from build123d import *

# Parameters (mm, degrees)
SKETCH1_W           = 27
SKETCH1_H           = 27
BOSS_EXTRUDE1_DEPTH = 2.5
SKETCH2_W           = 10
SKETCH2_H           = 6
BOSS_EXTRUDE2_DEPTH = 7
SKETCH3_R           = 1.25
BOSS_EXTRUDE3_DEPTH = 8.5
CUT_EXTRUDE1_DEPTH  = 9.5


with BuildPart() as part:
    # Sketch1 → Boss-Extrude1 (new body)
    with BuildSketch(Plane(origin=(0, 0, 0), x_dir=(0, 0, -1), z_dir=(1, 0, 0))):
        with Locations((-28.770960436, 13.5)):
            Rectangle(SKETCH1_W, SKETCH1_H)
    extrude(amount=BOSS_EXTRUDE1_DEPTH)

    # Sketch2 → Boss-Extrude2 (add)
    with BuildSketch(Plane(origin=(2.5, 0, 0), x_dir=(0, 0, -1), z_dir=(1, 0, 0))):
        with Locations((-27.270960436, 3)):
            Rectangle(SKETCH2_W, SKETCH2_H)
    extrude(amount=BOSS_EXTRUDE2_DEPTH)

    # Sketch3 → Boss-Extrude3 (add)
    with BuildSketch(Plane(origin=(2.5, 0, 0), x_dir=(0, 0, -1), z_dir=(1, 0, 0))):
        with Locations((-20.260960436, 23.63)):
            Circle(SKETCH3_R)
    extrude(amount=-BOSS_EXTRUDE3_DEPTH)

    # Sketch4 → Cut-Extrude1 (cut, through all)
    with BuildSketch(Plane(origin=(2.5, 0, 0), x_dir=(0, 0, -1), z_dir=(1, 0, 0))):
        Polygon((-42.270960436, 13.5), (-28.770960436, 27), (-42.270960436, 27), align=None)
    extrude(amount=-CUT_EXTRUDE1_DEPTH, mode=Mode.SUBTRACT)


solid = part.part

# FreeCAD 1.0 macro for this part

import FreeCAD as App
import Part
import Sketcher
from FreeCAD import Vector


def add_polygon(sketch, points):
    """Adds a closed chain of lines whose ends are joined by coincident constraints."""
    first, n = sketch.GeometryCount, len(points)
    for a, b in zip(points, points[1:] + points[:1]):
        sketch.addGeometry(Part.LineSegment(App.Vector(*a, 0), App.Vector(*b, 0)), False)
    for i in range(n):
        sketch.addConstraint(Sketcher.Constraint("Coincident", first + i, 2, first + (i + 1) % n, 1))

doc = App.newDocument("Part")
body = doc.addObject("PartDesign::Body", "Body")

# Sketch on YZ plane
sketch1 = body.newObject("Sketcher::SketchObject", "Sketch")
sketch1.AttachmentSupport = (doc.getObject("YZ_Plane"), [""])
sketch1.MapMode = "FlatFace"
add_polygon(sketch1, [(27, 42), (0, 42), (0, 15), (27, 15)])  # lines 0-3
sketch1.addConstraint(Sketcher.Constraint("Horizontal", 0))
sketch1.addConstraint(Sketcher.Constraint("Vertical", 1))
sketch1.addConstraint(Sketcher.Constraint("Horizontal", 2))
sketch1.addConstraint(Sketcher.Constraint("Vertical", 3))
sketch1.addConstraint(Sketcher.Constraint("PointOnObject", 0, 2, -2))
sketch1.addConstraint(Sketcher.Constraint("Equal", 2, 1))
sketch1.addConstraint(Sketcher.Constraint("DistanceX", 0, 2, 0, 1, 27.0))
sketch1.addConstraint(Sketcher.Constraint("DistanceY", -1, 1, 0, 2, 42.27096))
pad1 = body.newObject("PartDesign::Pad", "Pad")
pad1.Profile = sketch1
pad1.Length = 2.5

# Sketch on YZ plane
sketch2 = body.newObject("Sketcher::SketchObject", "Sketch001")
sketch2.AttachmentSupport = (doc.getObject("YZ_Plane"), [""])
sketch2.MapMode = "FlatFace"
sketch2.AttachmentOffset = App.Placement(Vector(0, 0, 2.5), App.Rotation())
add_polygon(sketch2, [(6, 32), (0, 32), (0, 22), (6, 22)])  # lines 0-3
sketch2.addConstraint(Sketcher.Constraint("Horizontal", 0))
sketch2.addConstraint(Sketcher.Constraint("Vertical", 1))
sketch2.addConstraint(Sketcher.Constraint("Horizontal", 2))
sketch2.addConstraint(Sketcher.Constraint("Vertical", 3))
sketch2.addConstraint(Sketcher.Constraint("PointOnObject", 0, 2, -2))
sketch2.addConstraint(Sketcher.Constraint("DistanceX", 0, 2, 0, 1, 6.0))
sketch2.addConstraint(Sketcher.Constraint("DistanceY", 1, 2, 1, 1, 10.0))
sketch2.addConstraint(Sketcher.Constraint("DistanceY", -1, 1, 0, 2, 32.27096))
pad2 = body.newObject("PartDesign::Pad", "Pad001")
pad2.Profile = sketch2
pad2.Length = 7

# Sketch on YZ plane
sketch3 = body.newObject("Sketcher::SketchObject", "Sketch002")
sketch3.AttachmentSupport = (doc.getObject("YZ_Plane"), [""])
sketch3.MapMode = "FlatFace"
sketch3.AttachmentOffset = App.Placement(Vector(0, 0, 2.5), App.Rotation())
sketch3.addGeometry(Part.Circle(Vector(23.6, 20.3, 0), Vector(0, 0, 1), 1.2), False)
sketch3.addConstraint(Sketcher.Constraint("Diameter", 0, 2.5))
sketch3.addConstraint(Sketcher.Constraint("DistanceX", -1, 1, 0, 3, 23.63))
sketch3.addConstraint(Sketcher.Constraint("DistanceY", -1, 1, 0, 3, 20.26096))
pad3 = body.newObject("PartDesign::Pad", "Pad002")
pad3.Profile = sketch3
pad3.Length = 8.5
pad3.Reversed = True

# Sketch on YZ plane
sketch4 = body.newObject("Sketcher::SketchObject", "Sketch003")
sketch4.AttachmentSupport = (doc.getObject("YZ_Plane"), [""])
sketch4.MapMode = "FlatFace"
sketch4.AttachmentOffset = App.Placement(Vector(0, 0, 2.5), App.Rotation())
add_polygon(sketch4, [(14, 42), (27, 29), (27, 42)])  # lines 0-2
sketch4.addConstraint(Sketcher.Constraint("Vertical", 1))
sketch4.addConstraint(Sketcher.Constraint("Horizontal", 2))
sketch4.addConstraint(Sketcher.Constraint("Equal", 2, 1))
sketch4.addConstraint(Sketcher.Constraint("DistanceX", 2, 2, 2, 1, 13.5))
sketch4.addConstraint(Sketcher.Constraint("DistanceX", -1, 1, 0, 2, 27.0))
sketch4.addConstraint(Sketcher.Constraint("DistanceY", -1, 1, 0, 2, 28.77096))
pocket1 = body.newObject("PartDesign::Pocket", "Pocket")
pocket1.Profile = sketch4
pocket1.Type = "ThroughAll"

doc.recompute()
